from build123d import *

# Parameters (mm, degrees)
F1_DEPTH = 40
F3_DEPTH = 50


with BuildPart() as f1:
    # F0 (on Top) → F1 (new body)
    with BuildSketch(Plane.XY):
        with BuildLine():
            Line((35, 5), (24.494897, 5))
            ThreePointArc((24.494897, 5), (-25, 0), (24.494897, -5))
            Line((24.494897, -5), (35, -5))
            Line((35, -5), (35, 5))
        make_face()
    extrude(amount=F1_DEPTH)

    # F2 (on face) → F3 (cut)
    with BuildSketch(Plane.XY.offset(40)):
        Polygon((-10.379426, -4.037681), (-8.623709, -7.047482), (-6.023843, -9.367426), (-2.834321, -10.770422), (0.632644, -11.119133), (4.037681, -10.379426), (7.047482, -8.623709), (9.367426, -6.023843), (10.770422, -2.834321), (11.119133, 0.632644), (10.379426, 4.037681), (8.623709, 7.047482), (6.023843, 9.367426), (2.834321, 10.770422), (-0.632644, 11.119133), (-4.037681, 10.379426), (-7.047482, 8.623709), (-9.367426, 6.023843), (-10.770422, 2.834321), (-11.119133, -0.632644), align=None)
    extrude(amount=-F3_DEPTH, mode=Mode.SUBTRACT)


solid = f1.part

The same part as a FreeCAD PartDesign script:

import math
import FreeCAD as App
import Part
import Sketcher


def add_polygon(sketch, points):
    """Adds a closed chain of lines whose ends are joined by coincident constraints."""
    first, n = sketch.GeometryCount, len(points)
    for a, b in zip(points, points[1:] + points[:1]):
        sketch.addGeometry(Part.LineSegment(App.Vector(*a, 0), App.Vector(*b, 0)), False)
    for i in range(n):
        sketch.addConstraint(Sketcher.Constraint("Coincident", first + i, 2, first + (i + 1) % n, 1))

doc = App.newDocument("Part")
body = doc.addObject("PartDesign::Body", "Body")

sketch1 = doc.addObject("Sketcher::SketchObject", "Sketch")
body.addObject(sketch1)
sketch1.AttachmentSupport = (doc.XY_Plane, [""])
sketch1.MapMode = "FlatFace"
sketch1.addGeometry(Part.LineSegment(App.Vector(35, 5, 0), App.Vector(24.494897, 5, 0)), False)
sketch1.addGeometry(Part.ArcOfCircle(Part.Circle(App.Vector(0, 0, 0), App.Vector(0, 0, 1), 25), math.radians(11.536959), math.radians(348.463041)), False)
sketch1.addGeometry(Part.LineSegment(App.Vector(24.494897, -5, 0), App.Vector(35, -5, 0)), False)
sketch1.addGeometry(Part.LineSegment(App.Vector(35, -5, 0), App.Vector(35, 5, 0)), False)
sketch1.addConstraint(Sketcher.Constraint("Coincident", 0, 2, 1, 1))
sketch1.addConstraint(Sketcher.Constraint("Coincident", 1, 2, 2, 1))
sketch1.addConstraint(Sketcher.Constraint("Coincident", 2, 2, 3, 1))
sketch1.addConstraint(Sketcher.Constraint("Coincident", 3, 2, 0, 1))
sketch1.addConstraint(Sketcher.Constraint("Horizontal", 0))
sketch1.addConstraint(Sketcher.Constraint("Horizontal", 2))
sketch1.addConstraint(Sketcher.Constraint("Vertical", 3))
sketch1.addConstraint(Sketcher.Constraint("Coincident", 1, 3, -1, 1))
sketch1.addConstraint(Sketcher.Constraint("Vertical", 0, 2, 1, 2))
sketch1.addConstraint(Sketcher.Constraint("Radius", 1, 25.0))
sketch1.addConstraint(Sketcher.Constraint("DistanceY", 3, 1, 3, 2, 10.0))
sketch1.addConstraint(Sketcher.Constraint("DistanceX", -1, 1, 2, 2, 35.0))
pad1 = doc.addObject("PartDesign::Pad", "Pad")
body.addObject(pad1)
pad1.Profile = sketch1
pad1.Length = 40

sketch2 = doc.addObject("Sketcher::SketchObject", "Sketch001")
body.addObject(sketch2)
sketch2.AttachmentSupport = (doc.XY_Plane, [""])
sketch2.MapMode = "FlatFace"
sketch2.AttachmentOffset = App.Placement(App.Vector(0, 0, 40), App.Rotation())
add_polygon(sketch2, [(-10.379426, -4.037681), (-8.623709, -7.047482), (-6.023843, -9.367426), (-2.834321, -10.770422), (0.632644, -11.119133), (4.037681, -10.379426), (7.047482, -8.623709), (9.367426, -6.023843), (10.770422, -2.834321), (11.119133, 0.632644), (10.379426, 4.037681), (8.623709, 7.047482), (6.023843, 9.367426), (2.834321, 10.770422), (-0.632644, 11.119133), (-4.037681, 10.379426), (-7.047482, 8.623709), (-9.367426, 6.023843), (-10.770422, 2.834321), (-11.119133, -0.632644)])
sketch2.addConstraint(Sketcher.Constraint("Symmetric", 0, 2, 10, 2, -1, 1))
sketch2.addConstraint(Sketcher.Constraint("Symmetric", 1, 2, 11, 2, -1, 1))
sketch2.addConstraint(Sketcher.Constraint("Symmetric", 2, 2, 12, 2, -1, 1))
sketch2.addConstraint(Sketcher.Constraint("Symmetric", 3, 2, 13, 2, -1, 1))
sketch2.addConstraint(Sketcher.Constraint("Symmetric", 4, 2, 14, 2, -1, 1))
sketch2.addConstraint(Sketcher.Constraint("Symmetric", 5, 2, 15, 2, -1, 1))
sketch2.addConstraint(Sketcher.Constraint("Symmetric", 6, 2, 16, 2, -1, 1))
sketch2.addConstraint(Sketcher.Constraint("Symmetric", 7, 2, 17, 2, -1, 1))
sketch2.addConstraint(Sketcher.Constraint("Symmetric", 8, 2, 18, 2, -1, 1))
sketch2.addConstraint(Sketcher.Constraint("Symmetric", 9, 2, 19, 2, -1, 1))
sketch2.addConstraint(Sketcher.Constraint("Perpendicular", 0, 5))
sketch2.addConstraint(Sketcher.Constraint("Perpendicular", 1, 6))
sketch2.addConstraint(Sketcher.Constraint("Perpendicular", 2, 7))
sketch2.addConstraint(Sketcher.Constraint("Perpendicular", 3, 8))
sketch2.addConstraint(Sketcher.Constraint("Perpendicular", 4, 9))
sketch2.addConstraint(Sketcher.Constraint("Equal", 0, 1))
sketch2.addConstraint(Sketcher.Constraint("Equal", 1, 2))
sketch2.addConstraint(Sketcher.Constraint("Equal", 2, 3))
sketch2.addConstraint(Sketcher.Constraint("Equal", 3, 4))
sketch2.addConstraint(Sketcher.Constraint("Equal", 4, 5))
sketch2.addConstraint(Sketcher.Constraint("Equal", 5, 6))
sketch2.addConstraint(Sketcher.Constraint("Equal", 6, 7))
sketch2.addConstraint(Sketcher.Constraint("Equal", 7, 8))
sketch2.addConstraint(Sketcher.Constraint("Equal", 8, 9))
sketch2.addConstraint(Sketcher.Constraint("DistanceY", 4, 2, 1, 2, 1.012))
sketch2.addConstraint(Sketcher.Constraint("DistanceX", 4, 2, 5, 2, 3.009801))
sketch2.addConstraint(Sketcher.Constraint("DistanceY", 2, 2, 7, 2, 7.936101))
sketch2.addConstraint(Sketcher.Constraint("Distance", 2, 3.484458))
sketch2.addConstraint(Sketcher.Constraint("DistanceX", 0, 2, -1, 1, 8.623709))
sketch2.addConstraint(Sketcher.Constraint("DistanceY", 0, 2, -1, 1, 7.047482))
pocket1 = doc.addObject("PartDesign::Pocket", "Pocket")
body.addObject(pocket1)
pocket1.Profile = sketch2
pocket1.Length = 50

doc.recompute()
